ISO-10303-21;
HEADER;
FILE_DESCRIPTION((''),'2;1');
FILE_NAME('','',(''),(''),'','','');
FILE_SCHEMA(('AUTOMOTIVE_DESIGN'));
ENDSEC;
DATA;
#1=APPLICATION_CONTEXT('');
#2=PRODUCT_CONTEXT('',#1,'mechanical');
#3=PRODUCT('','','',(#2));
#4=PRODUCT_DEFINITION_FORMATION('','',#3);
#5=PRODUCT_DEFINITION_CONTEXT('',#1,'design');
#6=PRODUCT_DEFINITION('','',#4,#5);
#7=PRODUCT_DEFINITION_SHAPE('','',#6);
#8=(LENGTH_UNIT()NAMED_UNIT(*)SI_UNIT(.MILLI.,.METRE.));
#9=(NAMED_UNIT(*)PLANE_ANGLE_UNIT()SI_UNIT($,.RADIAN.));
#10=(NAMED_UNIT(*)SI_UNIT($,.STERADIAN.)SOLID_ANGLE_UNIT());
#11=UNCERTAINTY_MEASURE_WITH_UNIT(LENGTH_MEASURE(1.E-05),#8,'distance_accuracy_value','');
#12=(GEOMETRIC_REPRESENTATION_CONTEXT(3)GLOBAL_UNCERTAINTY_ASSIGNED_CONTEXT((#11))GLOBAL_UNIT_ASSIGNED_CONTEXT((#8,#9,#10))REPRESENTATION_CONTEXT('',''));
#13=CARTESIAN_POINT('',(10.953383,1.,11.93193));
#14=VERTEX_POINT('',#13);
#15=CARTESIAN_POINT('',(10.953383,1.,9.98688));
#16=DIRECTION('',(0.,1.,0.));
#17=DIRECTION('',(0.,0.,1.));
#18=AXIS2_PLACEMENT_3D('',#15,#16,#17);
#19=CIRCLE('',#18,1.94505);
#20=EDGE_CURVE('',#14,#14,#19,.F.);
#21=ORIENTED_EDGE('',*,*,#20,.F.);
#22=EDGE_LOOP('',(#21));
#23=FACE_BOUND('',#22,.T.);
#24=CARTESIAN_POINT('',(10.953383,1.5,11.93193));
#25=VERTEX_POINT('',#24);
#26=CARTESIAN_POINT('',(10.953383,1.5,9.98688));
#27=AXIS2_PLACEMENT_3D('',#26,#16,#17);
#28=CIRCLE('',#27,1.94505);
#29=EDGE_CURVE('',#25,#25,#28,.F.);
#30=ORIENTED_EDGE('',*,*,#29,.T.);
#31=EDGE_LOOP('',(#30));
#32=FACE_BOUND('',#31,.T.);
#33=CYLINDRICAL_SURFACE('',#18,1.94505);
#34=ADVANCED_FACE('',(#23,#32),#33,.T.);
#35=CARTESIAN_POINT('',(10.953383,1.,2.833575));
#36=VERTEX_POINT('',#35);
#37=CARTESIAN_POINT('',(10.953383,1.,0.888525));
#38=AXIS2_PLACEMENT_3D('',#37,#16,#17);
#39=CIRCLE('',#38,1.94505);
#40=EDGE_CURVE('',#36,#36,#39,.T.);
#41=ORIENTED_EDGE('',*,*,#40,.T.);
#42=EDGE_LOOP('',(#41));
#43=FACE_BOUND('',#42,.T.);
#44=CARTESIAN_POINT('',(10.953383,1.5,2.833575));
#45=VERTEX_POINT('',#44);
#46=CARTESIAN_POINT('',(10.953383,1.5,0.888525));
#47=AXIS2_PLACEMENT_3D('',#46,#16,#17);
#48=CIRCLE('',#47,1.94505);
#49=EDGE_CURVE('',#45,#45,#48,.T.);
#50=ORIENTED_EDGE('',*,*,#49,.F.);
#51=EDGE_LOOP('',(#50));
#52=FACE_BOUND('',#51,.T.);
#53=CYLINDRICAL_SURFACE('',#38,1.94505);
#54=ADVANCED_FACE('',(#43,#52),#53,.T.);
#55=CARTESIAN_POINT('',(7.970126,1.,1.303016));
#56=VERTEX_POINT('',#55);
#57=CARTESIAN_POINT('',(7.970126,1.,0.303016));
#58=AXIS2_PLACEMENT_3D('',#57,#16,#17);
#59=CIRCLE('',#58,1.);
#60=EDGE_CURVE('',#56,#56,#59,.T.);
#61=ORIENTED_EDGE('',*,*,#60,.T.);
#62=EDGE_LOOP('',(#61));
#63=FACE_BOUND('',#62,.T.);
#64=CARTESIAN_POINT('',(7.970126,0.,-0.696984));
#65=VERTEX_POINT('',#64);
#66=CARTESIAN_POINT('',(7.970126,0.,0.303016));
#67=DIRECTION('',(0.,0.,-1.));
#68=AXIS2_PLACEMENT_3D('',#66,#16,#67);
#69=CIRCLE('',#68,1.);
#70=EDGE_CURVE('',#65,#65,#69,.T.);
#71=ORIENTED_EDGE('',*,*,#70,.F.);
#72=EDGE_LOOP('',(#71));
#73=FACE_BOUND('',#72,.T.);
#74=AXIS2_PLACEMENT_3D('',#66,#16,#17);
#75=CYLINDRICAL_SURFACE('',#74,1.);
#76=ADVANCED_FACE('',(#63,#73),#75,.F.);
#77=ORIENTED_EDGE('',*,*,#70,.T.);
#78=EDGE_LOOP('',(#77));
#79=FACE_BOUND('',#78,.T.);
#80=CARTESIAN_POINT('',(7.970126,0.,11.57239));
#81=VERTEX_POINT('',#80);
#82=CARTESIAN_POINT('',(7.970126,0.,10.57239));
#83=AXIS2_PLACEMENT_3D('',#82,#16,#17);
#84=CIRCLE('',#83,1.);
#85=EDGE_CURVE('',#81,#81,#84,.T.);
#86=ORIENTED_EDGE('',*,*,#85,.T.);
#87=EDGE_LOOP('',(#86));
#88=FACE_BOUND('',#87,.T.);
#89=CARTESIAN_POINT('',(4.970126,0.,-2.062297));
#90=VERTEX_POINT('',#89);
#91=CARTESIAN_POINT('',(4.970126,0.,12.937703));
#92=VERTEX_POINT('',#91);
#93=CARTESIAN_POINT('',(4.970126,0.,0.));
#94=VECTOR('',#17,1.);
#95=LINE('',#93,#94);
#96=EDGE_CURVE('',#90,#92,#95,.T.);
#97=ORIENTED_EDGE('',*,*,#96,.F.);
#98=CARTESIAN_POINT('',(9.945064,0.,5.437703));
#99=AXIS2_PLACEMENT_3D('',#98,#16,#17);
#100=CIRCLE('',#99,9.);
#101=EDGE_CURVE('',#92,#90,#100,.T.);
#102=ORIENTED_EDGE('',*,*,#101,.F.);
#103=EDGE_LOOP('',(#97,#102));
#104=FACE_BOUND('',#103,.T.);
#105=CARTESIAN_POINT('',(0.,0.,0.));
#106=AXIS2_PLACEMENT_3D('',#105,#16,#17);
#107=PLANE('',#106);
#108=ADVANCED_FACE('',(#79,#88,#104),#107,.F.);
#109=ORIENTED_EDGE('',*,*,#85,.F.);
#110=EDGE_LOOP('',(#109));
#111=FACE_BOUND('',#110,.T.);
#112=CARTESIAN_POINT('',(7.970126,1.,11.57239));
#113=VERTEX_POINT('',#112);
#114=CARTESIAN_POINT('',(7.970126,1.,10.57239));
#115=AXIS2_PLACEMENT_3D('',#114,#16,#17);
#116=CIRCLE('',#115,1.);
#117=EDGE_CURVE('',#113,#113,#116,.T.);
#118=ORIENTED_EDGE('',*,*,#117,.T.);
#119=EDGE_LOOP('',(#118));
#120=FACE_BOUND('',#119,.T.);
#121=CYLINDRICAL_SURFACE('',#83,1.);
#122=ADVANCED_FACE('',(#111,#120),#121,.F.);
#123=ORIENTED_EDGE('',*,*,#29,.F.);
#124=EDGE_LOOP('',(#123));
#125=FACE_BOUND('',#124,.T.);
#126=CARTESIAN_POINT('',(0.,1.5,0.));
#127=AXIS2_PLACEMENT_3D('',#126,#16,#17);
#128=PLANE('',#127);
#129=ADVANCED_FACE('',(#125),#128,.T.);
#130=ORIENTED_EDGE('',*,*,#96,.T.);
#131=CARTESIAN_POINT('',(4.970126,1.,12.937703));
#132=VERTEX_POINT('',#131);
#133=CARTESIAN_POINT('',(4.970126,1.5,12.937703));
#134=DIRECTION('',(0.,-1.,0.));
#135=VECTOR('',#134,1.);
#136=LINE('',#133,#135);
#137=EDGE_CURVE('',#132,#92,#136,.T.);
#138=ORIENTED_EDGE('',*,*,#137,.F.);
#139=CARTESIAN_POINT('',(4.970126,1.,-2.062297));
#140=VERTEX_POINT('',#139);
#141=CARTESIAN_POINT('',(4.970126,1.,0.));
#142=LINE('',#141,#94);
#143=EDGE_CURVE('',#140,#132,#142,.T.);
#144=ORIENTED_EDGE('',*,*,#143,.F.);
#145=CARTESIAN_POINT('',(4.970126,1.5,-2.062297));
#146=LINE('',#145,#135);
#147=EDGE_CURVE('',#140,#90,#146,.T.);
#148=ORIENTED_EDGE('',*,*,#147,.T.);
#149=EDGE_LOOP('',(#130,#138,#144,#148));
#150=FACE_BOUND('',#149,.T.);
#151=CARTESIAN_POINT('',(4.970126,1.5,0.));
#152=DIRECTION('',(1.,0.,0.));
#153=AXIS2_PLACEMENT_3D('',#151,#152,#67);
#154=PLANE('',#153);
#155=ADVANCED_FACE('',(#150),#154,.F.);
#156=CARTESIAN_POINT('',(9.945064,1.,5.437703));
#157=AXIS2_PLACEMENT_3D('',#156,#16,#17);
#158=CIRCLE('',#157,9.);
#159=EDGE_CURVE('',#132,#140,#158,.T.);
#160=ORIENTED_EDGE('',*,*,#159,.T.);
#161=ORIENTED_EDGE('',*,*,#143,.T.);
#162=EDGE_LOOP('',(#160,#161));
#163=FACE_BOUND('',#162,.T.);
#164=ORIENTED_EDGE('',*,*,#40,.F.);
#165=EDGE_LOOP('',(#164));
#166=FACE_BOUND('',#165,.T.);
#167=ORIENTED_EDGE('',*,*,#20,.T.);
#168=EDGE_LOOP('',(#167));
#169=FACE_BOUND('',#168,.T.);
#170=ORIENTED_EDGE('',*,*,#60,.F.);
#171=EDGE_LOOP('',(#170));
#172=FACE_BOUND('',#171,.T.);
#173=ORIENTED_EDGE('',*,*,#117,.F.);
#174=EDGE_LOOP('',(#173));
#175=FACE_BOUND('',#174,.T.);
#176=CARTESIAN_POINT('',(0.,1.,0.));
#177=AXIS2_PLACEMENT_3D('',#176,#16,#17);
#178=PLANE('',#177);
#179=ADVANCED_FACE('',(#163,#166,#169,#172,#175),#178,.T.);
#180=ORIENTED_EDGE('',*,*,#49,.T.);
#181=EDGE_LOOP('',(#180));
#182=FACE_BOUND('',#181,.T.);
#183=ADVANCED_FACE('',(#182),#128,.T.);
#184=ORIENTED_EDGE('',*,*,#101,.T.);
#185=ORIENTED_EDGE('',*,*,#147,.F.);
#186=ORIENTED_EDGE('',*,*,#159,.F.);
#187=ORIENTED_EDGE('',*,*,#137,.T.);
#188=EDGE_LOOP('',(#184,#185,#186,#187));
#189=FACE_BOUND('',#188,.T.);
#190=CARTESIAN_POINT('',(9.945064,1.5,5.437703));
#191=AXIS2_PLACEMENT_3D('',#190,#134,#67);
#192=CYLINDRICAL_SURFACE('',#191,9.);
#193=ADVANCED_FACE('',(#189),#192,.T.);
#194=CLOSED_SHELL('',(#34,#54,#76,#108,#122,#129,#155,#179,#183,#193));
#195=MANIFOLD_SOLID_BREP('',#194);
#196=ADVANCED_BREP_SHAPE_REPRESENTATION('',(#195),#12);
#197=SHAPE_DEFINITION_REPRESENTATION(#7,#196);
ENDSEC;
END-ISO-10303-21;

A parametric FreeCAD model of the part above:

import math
import FreeCAD as App
import Part
import Sketcher

V = App.Vector
Q = App.Units.Quantity

doc = App.newDocument("Part")
params = doc.addObject("Spreadsheet::Sheet", "Params")
for row, (alias, value) in enumerate([
    ("sketch1_radius", "9 mm"),
    ("sketch1_height", "15 mm"),
    ("pad1_length", "1.5 mm"),
    ("pocket1_length", "0.5 mm"),
    ("sketch3_diameter", "2 mm"),
], start=1):
    params.set(f"A{row}", alias)
    params.set(f"B{row}", "=" + value)
    params.setAlias(f"B{row}", alias)

body = doc.addObject("PartDesign::Body", "Body")

# Sketch on XZ plane
sketch1 = doc.addObject("Sketcher::SketchObject", "Sketch")
body.addObject(sketch1)
sketch1.AttachmentSupport = (doc.XZ_Plane, [""])
sketch1.MapMode = "FlatFace"
sketch1.addGeometry([
    Part.ArcOfCircle(Part.Circle(V(10, 5, 0), V(0, 0, 1), 9), math.radians(-124), math.radians(0)),
    Part.LineSegment(V(5, -2, 0), V(5, 13, 0)),
    Part.ArcOfCircle(Part.Circle(V(10, 5, 0), V(0, 0, 1), 9), math.radians(0), math.radians(124)),
], False)
sketch1.addConstraint([
    Sketcher.Constraint("Coincident", 0, 1, 1, 1),
    Sketcher.Constraint("Coincident", 1, 2, 2, 2),
    Sketcher.Constraint("Tangent", 2, 1, 0, 2),
    Sketcher.Constraint("Vertical", 1),
    Sketcher.Constraint("Equal", 0, 2),
    Sketcher.Constraint("Horizontal", 0, 3, 2, 1),
    Sketcher.Constraint("Radius", 0, Q("9 mm")),
    Sketcher.Constraint("DistanceY", 1, 1, 1, 2, Q("15 mm")),
    Sketcher.Constraint("DistanceX", -1, 1, 0, 3, Q("9.945064 mm")),
    Sketcher.Constraint("DistanceY", -1, 1, 0, 3, Q("5.437703 mm")),
])
sketch1.setExpression("Constraints[6]", "Params.sketch1_radius")
sketch1.setExpression("Constraints[7]", "Params.sketch1_height")
pad1 = doc.addObject("PartDesign::Pad", "Pad")
body.addObject(pad1)
pad1.Profile = sketch1
pad1.setExpression("Length", "Params.pad1_length")
pad1.Reversed = True

# Sketch on XZ plane
sketch2 = doc.addObject("Sketcher::SketchObject", "Sketch001")
body.addObject(sketch2)
sketch2.AttachmentSupport = (doc.XZ_Plane, [""])
sketch2.MapMode = "FlatFace"
sketch2.AttachmentOffset = App.Placement(V(0, 0, -1.5), App.Rotation())
sketch2.addGeometry([
    Part.Circle(V(8.3, 5.2, 0), V(0, 0, 1), 15.7),
    Part.Circle(V(11, 10, 0), V(0, 0, 1), 1.9),
    Part.Circle(V(11, 0.9, 0), V(0, 0, 1), 1.9),
], False)
sketch2.addConstraint([
    Sketcher.Constraint("Equal", 1, 2),
    Sketcher.Constraint("Vertical", 1, 3, 2, 3),
    Sketcher.Constraint("Diameter", 1, Q("3.890099 mm")),
    Sketcher.Constraint("DistanceX", -1, 1, 0, 3, Q("8.279999 mm")),
    Sketcher.Constraint("Diameter", 0, Q("31.454913 mm")),
    Sketcher.Constraint("DistanceY", -1, 1, 0, 3, Q("5.16124 mm")),
    Sketcher.Constraint("DistanceY", -1, 1, 1, 3, Q("9.98688 mm")),
    Sketcher.Constraint("DistanceX", -1, 1, 1, 3, Q("10.953383 mm")),
    Sketcher.Constraint("DistanceY", -1, 1, 2, 3, Q("0.888525 mm")),
])
pocket1 = doc.addObject("PartDesign::Pocket", "Pocket")
body.addObject(pocket1)
pocket1.Profile = sketch2
pocket1.setExpression("Length", "Params.pocket1_length")
pocket1.Reversed = True

# Sketch on XZ plane
sketch3 = doc.addObject("Sketcher::SketchObject", "Sketch002")
body.addObject(sketch3)
sketch3.AttachmentSupport = (doc.XZ_Plane, [""])
sketch3.MapMode = "FlatFace"
sketch3.AttachmentOffset = App.Placement(V(0, 0, -1), App.Rotation())
sketch3.addGeometry([
    Part.Circle(V(8, 10.6, 0), V(0, 0, 1), 1),
    Part.Circle(V(8, 0.3, 0), V(0, 0, 1), 1),
], False)
sketch3.addConstraint([
    Sketcher.Constraint("Equal", 0, 1),
    Sketcher.Constraint("Vertical", 0, 3, 1, 3),
    Sketcher.Constraint("Diameter", 0, Q("2 mm")),
    Sketcher.Constraint("DistanceY", -1, 1, 0, 3, Q("10.57239 mm")),
    Sketcher.Constraint("DistanceX", -1, 1, 0, 3, Q("7.970126 mm")),
    Sketcher.Constraint("DistanceY", -1, 1, 1, 3, Q("0.303016 mm")),
])
sketch3.setExpression("Constraints[2]", "Params.sketch3_diameter")
pocket2 = doc.addObject("PartDesign::Pocket", "Pocket001")
body.addObject(pocket2)
pocket2.Profile = sketch3
pocket2.Type = "ThroughAll"
pocket2.Midplane = True

doc.recompute()
